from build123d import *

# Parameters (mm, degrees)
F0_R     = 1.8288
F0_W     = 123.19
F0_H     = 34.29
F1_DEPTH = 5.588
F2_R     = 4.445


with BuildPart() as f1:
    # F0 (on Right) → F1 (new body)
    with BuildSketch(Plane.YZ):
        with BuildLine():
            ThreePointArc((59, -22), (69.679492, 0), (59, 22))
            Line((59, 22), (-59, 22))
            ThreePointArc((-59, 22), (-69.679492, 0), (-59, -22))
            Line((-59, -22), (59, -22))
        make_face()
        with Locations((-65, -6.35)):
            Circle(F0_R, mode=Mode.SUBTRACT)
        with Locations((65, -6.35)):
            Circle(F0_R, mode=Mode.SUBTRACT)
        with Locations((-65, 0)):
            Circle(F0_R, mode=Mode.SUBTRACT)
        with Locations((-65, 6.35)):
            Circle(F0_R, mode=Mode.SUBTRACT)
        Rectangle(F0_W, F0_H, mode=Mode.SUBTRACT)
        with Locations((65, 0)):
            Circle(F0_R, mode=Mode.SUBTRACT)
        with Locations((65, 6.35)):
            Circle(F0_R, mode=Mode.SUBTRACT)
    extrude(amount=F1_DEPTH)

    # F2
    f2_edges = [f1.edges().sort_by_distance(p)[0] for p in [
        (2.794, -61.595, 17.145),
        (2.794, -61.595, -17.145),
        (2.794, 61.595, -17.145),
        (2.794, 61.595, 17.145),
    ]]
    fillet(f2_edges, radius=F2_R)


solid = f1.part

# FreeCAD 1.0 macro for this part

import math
import FreeCAD as App
import Part
import Sketcher

V = App.Vector
Q = App.Units.Quantity


def edges_at(feature, points):
    """Names of the edges that pass closest to the given points."""
    edges = feature.Shape.Edges
    near = lambda p: min(range(len(edges)), key=lambda i: edges[i].distToShape(Part.Vertex(*p))[0])
    return sorted({f"Edge{near(p) + 1}" for p in points})

doc = App.newDocument("Part")
body = doc.addObject("PartDesign::Body", "Body")

sketch1 = doc.addObject("Sketcher::SketchObject", "Sketch")
body.addObject(sketch1)
sketch1.AttachmentSupport = (doc.YZ_Plane, [""])
sketch1.MapMode = "FlatFace"
sketch1.addGeometry([
    Part.ArcOfCircle(Part.Circle(V(41.7, 0, 0), V(0, 0, 1), 28), math.radians(-52), math.radians(52)),
    Part.LineSegment(V(59, 22, 0), V(-59, 22, 0)),
    Part.ArcOfCircle(Part.Circle(V(-41.7, 0, 0), V(0, 0, 1), 28), math.radians(128), math.radians(232)),
    Part.LineSegment(V(-59, -22, 0), V(59, -22, 0)),
    Part.Circle(V(-65, -6.3, 0), V(0, 0, 1), 1.8),
    Part.Circle(V(65, -6.3, 0), V(0, 0, 1), 1.8),
    Part.Circle(V(-65, 0, 0), V(0, 0, 1), 1.8),
    Part.Circle(V(-65, 6.3, 0), V(0, 0, 1), 1.8),
    Part.LineSegment(V(61.6, -17.1, 0), V(-61.6, -17.1, 0)),
    Part.LineSegment(V(-61.6, -17.1, 0), V(-61.6, 17.1, 0)),
    Part.LineSegment(V(-61.6, 17.1, 0), V(61.6, 17.1, 0)),
    Part.LineSegment(V(61.6, 17.1, 0), V(61.6, -17.1, 0)),
    Part.Circle(V(65, 0, 0), V(0, 0, 1), 1.8),
    Part.Circle(V(65, 6.3, 0), V(0, 0, 1), 1.8),
], False)
sketch1.addConstraint([
    Sketcher.Constraint("Coincident", 0, 2, 1, 1),
    Sketcher.Constraint("Coincident", 1, 2, 2, 1),
    Sketcher.Constraint("Coincident", 2, 2, 3, 1),
    Sketcher.Constraint("Coincident", 3, 2, 0, 1),
    Sketcher.Constraint("Coincident", 8, 2, 9, 1),
    Sketcher.Constraint("Coincident", 9, 2, 10, 1),
    Sketcher.Constraint("Coincident", 10, 2, 11, 1),
    Sketcher.Constraint("Coincident", 11, 2, 8, 1),
    Sketcher.Constraint("Horizontal", 1),
    Sketcher.Constraint("Horizontal", 3),
    Sketcher.Constraint("Horizontal", 8),
    Sketcher.Constraint("Vertical", 9),
    Sketcher.Constraint("Horizontal", 10),
    Sketcher.Constraint("Vertical", 11),
    Sketcher.Constraint("Equal", 0, 2),
    Sketcher.Constraint("Equal", 4, 5),
    Sketcher.Constraint("Equal", 5, 6),
    Sketcher.Constraint("Equal", 6, 7),
    Sketcher.Constraint("Equal", 7, 12),
    Sketcher.Constraint("Equal", 12, 13),
    Sketcher.Constraint("Symmetric", 0, 3, 2, 3, -1, 1),
    Sketcher.Constraint("Symmetric", 5, 3, 7, 3, -1, 1),
    Sketcher.Constraint("Symmetric", 6, 3, 12, 3, -1, 1),
    Sketcher.Constraint("Symmetric", 4, 3, 13, 3, -1, 1),
    Sketcher.Constraint("Symmetric", 8, 2, 10, 2, -1, 1),
    Sketcher.Constraint("Symmetric", 4, 3, 5, 3, -2),
    Sketcher.Constraint("Symmetric", 1, 2, 2, 2, -1),
    Sketcher.Constraint("PointOnObject", 6, 3, -1),
    Sketcher.Constraint("Vertical", 4, 3, 6, 3),
    Sketcher.Constraint("Diameter", 4, Q("0.144 in")),
    Sketcher.Constraint("DistanceX", 8, 2, 8, 1, Q("4.85 in")),
    Sketcher.Constraint("DistanceY", 9, 1, 9, 2, Q("1.35 in")),
    Sketcher.Constraint("DistanceY", 4, 3, 7, 3, Q("0.5 in")),
    Sketcher.Constraint("Radius", 0, 28.0),
    Sketcher.Constraint("DistanceX", 1, 2, 1, 1, 118.0),
    Sketcher.Constraint("DistanceX", 4, 3, -1, 1, 65.0),
    Sketcher.Constraint("DistanceY", -1, 1, 0, 2, 22.0),
])
pad1 = doc.addObject("PartDesign::Pad", "Pad")
body.addObject(pad1)
pad1.Profile = sketch1
pad1.Length = Q("0.22 in")
doc.recompute()

fillet = doc.addObject("PartDesign::Fillet", "Fillet")
body.addObject(fillet)
fillet.Base = (pad1, edges_at(pad1, [
    (2.794, -61.595, 17.145),
    (2.794, -61.595, -17.145),
    (2.794, 61.595, -17.145),
    (2.794, 61.595, 17.145),
]))
fillet.Radius = Q("0.175 in")

doc.recompute()
